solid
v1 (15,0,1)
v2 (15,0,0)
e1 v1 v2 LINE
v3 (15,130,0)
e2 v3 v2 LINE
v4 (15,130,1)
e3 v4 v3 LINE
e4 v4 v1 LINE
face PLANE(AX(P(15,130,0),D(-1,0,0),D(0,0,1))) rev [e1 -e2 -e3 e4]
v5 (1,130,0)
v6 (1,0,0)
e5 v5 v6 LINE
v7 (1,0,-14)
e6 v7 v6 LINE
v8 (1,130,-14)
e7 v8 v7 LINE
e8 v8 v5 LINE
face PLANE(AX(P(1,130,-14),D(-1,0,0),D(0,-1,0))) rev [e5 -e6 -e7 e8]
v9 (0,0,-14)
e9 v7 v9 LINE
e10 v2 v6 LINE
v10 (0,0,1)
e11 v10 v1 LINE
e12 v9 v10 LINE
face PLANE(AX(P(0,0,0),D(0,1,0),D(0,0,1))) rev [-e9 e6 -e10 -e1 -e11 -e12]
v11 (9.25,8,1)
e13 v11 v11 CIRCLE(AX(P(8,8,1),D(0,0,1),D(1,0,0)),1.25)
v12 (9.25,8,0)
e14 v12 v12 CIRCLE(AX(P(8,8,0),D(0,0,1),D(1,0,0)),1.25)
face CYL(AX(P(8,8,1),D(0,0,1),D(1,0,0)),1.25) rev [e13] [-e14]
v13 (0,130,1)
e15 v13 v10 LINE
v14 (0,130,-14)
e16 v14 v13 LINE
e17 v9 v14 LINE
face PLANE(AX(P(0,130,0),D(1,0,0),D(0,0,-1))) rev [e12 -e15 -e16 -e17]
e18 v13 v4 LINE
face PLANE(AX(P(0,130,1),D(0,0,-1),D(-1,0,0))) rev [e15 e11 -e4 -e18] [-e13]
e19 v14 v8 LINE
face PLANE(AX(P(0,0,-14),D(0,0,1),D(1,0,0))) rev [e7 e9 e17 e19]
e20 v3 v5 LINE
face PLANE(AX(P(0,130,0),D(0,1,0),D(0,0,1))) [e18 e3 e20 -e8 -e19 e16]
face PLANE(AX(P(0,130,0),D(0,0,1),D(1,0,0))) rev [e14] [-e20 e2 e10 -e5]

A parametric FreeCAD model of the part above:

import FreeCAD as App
import Part
import Sketcher

V = App.Vector
Q = App.Units.Quantity


def add_polygon(sketch, points):
    """Adds a closed chain of lines whose ends are joined by coincident constraints."""
    first, n = sketch.GeometryCount, len(points)
    for a, b in zip(points, points[1:] + points[:1]):
        sketch.addGeometry(Part.LineSegment(App.Vector(*a, 0), App.Vector(*b, 0)), False)
    for i in range(n):
        sketch.addConstraint(Sketcher.Constraint("Coincident", first + i, 2, first + (i + 1) % n, 1))

doc = App.newDocument("Part")
params = doc.addObject("Spreadsheet::Sheet", "Params")
for row, (alias, value) in enumerate([
    ("sketch1_width", "15 mm"),
    ("sketch1_height", "1 mm"),
    ("pad1_length", "130 mm"),
    ("sketch2_width", "1 mm"),
    ("sketch2_height", "130 mm"),
    ("pad2_length", "14 mm"),
    ("sketch3_diameter", "2.5 mm"),
    ("hole_diameter", "2.5 mm"),
], start=1):
    params.set(f"A{row}", alias)
    params.set(f"B{row}", "=" + value)
    params.setAlias(f"B{row}", alias)

body = doc.addObject("PartDesign::Body", "Body")

sketch1 = body.newObject("Sketcher::SketchObject", "Sketch")
sketch1.AttachmentSupport = (doc.getObject("XZ_Plane"), [""])
sketch1.MapMode = "FlatFace"
add_polygon(sketch1, [(0, 0), (0, 1), (15, 1), (15, 0)])
sketch1.addConstraint(Sketcher.Constraint("Vertical", 0))
sketch1.addConstraint(Sketcher.Constraint("Horizontal", 1))
sketch1.addConstraint(Sketcher.Constraint("Vertical", 2))
sketch1.addConstraint(Sketcher.Constraint("Horizontal", 3))
sketch1.addConstraint(Sketcher.Constraint("Coincident", 3, 2, -1, 1))
sketch1.addConstraint(Sketcher.Constraint("DistanceX", 1, 1, 1, 2, Q("15 mm")))
sketch1.addConstraint(Sketcher.Constraint("DistanceY", 0, 1, 0, 2, Q("1 mm")))
sketch1.setExpression("Constraints[9]", "Params.sketch1_width")
sketch1.setExpression("Constraints[10]", "Params.sketch1_height")
pad1 = body.newObject("PartDesign::Pad", "Pad")
pad1.Profile = sketch1
pad1.setExpression("Length", "Params.pad1_length")
pad1.Reversed = True

sketch2 = body.newObject("Sketcher::SketchObject", "Sketch001")
sketch2.AttachmentSupport = (doc.getObject("XY_Plane"), [""])
sketch2.MapMode = "FlatFace"
add_polygon(sketch2, [(1, 130), (1, 0), (0, 0), (0, 130)])
sketch2.addConstraint(Sketcher.Constraint("Vertical", 0))
sketch2.addConstraint(Sketcher.Constraint("Horizontal", 1))
sketch2.addConstraint(Sketcher.Constraint("Vertical", 2))
sketch2.addConstraint(Sketcher.Constraint("Horizontal", 3))
sketch2.addConstraint(Sketcher.Constraint("Coincident", 1, 2, -1, 1))
sketch2.addConstraint(Sketcher.Constraint("DistanceX", 1, 2, 1, 1, Q("1 mm")))
sketch2.addConstraint(Sketcher.Constraint("DistanceY", 0, 2, 0, 1, Q("130 mm")))
sketch2.setExpression("Constraints[9]", "Params.sketch2_width")
sketch2.setExpression("Constraints[10]", "Params.sketch2_height")
pad2 = body.newObject("PartDesign::Pad", "Pad001")
pad2.Profile = sketch2
pad2.setExpression("Length", "Params.pad2_length")
pad2.Reversed = True

sketch3 = body.newObject("Sketcher::SketchObject", "Sketch002")
sketch3.AttachmentSupport = (doc.getObject("XY_Plane"), [""])
sketch3.MapMode = "FlatFace"
sketch3.AttachmentOffset = App.Placement(V(0, 0, 1), App.Rotation())
sketch3.addGeometry(Part.Circle(V(8, 8, 0), V(0, 0, 1), 1.25), False)
sketch3.addConstraint(Sketcher.Constraint("Diameter", 0, Q("2.5 mm")))
sketch3.addConstraint(Sketcher.Constraint("DistanceX", -1, 1, 0, 3, Q("8 mm")))
sketch3.addConstraint(Sketcher.Constraint("DistanceY", -1, 1, 0, 3, Q("8 mm")))
sketch3.setExpression("Constraints[0]", "Params.sketch3_diameter")
doc.recompute()
hole = body.newObject("PartDesign::Hole", "Hole")
hole.Profile = sketch3
hole.ThreadType = "None"
hole.setExpression("Diameter", "Params.hole_diameter")
hole.DepthType = "ThroughAll"

doc.recompute()
